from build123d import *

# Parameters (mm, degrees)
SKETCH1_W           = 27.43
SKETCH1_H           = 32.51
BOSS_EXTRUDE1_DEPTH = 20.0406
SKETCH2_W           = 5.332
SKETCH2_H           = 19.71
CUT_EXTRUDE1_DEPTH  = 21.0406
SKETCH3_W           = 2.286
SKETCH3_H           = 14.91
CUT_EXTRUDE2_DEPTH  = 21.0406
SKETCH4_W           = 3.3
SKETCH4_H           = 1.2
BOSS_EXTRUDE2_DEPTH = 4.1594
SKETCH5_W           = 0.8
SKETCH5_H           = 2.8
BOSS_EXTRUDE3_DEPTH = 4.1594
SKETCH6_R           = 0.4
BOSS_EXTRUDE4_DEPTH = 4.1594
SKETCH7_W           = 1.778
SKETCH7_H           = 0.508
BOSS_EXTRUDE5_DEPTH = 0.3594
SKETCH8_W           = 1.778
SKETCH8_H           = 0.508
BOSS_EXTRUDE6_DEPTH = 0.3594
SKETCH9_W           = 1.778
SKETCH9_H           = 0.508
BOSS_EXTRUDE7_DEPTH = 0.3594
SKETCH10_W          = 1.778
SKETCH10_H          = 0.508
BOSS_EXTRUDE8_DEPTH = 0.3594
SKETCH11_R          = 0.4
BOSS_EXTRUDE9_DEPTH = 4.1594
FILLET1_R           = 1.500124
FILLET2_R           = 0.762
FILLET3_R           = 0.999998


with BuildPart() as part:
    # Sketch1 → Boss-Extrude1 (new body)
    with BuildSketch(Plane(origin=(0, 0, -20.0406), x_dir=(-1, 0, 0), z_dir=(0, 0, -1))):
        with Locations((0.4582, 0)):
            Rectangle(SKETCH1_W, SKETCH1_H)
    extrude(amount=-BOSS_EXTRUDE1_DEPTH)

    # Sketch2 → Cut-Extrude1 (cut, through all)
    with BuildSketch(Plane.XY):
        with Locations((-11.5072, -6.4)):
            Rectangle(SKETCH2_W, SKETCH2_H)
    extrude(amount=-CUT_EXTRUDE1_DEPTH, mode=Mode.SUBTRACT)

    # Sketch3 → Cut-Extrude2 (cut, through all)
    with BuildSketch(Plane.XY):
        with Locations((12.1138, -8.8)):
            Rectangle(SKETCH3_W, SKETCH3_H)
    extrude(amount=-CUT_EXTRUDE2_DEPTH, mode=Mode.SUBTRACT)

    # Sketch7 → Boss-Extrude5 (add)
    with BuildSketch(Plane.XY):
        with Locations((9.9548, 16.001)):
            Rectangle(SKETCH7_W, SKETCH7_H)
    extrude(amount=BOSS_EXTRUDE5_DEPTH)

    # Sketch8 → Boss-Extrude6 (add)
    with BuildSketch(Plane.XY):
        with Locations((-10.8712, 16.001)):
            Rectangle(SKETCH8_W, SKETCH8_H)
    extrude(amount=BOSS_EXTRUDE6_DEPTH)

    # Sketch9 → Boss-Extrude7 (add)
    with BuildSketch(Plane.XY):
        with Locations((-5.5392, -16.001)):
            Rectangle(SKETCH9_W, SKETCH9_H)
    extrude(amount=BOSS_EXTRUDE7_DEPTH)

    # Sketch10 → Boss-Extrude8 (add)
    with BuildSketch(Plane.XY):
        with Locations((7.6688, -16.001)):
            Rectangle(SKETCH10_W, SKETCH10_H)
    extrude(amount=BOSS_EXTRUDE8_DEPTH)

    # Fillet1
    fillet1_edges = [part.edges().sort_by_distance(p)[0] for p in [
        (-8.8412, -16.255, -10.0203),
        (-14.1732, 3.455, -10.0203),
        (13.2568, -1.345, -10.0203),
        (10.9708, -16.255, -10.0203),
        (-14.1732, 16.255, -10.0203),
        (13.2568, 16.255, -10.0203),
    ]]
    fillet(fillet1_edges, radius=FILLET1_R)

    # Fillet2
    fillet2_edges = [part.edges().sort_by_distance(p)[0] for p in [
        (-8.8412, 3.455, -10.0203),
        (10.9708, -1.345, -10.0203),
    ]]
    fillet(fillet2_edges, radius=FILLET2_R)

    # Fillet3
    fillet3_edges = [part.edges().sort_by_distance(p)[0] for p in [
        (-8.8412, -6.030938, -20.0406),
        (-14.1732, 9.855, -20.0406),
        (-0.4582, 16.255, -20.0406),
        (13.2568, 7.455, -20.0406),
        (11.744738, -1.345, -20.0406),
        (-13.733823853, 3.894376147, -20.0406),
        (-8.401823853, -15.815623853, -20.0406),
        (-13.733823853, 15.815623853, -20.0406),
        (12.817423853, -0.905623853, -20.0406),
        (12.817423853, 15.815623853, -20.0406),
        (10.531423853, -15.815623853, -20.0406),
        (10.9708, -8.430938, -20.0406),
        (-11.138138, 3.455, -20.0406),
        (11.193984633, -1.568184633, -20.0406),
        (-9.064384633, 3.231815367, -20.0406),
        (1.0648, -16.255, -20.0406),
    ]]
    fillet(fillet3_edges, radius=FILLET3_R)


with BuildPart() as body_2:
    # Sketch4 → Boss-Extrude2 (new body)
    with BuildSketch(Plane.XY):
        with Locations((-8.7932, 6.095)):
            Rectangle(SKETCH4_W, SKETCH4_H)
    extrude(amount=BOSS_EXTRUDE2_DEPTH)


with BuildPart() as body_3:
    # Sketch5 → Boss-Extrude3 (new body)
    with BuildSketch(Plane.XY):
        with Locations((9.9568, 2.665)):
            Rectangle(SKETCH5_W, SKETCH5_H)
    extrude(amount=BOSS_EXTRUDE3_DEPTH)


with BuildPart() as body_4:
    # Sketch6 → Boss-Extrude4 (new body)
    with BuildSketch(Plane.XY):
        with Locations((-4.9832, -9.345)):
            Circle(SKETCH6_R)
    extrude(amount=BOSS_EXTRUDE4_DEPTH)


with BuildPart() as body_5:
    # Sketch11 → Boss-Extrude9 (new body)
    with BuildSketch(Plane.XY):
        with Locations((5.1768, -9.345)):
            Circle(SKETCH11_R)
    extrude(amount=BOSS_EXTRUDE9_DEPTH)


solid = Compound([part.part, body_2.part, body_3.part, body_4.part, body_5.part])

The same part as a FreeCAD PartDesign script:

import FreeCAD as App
import Part
import Sketcher
from FreeCAD import Vector


def edges_at(feature, points):
    """Names of the edges that pass closest to the given points."""
    edges = feature.Shape.Edges
    near = lambda p: min(range(len(edges)), key=lambda i: edges[i].distToShape(Part.Vertex(*p))[0])
    return sorted({f"Edge{near(p) + 1}" for p in points})


def add_polygon(sketch, points):
    """Adds a closed chain of lines whose ends are joined by coincident constraints."""
    first, n = sketch.GeometryCount, len(points)
    for a, b in zip(points, points[1:] + points[:1]):
        sketch.addGeometry(Part.LineSegment(App.Vector(*a, 0), App.Vector(*b, 0)), False)
    for i in range(n):
        sketch.addConstraint(Sketcher.Constraint("Coincident", first + i, 2, first + (i + 1) % n, 1))

doc = App.newDocument("Part")
body = doc.addObject("PartDesign::Body", "Body")

sketch1 = body.newObject("Sketcher::SketchObject", "Sketch")
sketch1.AttachmentSupport = (doc.getObject("XY_Plane"), [""])
sketch1.MapMode = "FlatFace"
sketch1.AttachmentOffset = App.Placement(Vector(0, 0, -20.0406), App.Rotation())
add_polygon(sketch1, [(13, 16), (13, -16), (-14, -16), (-14, 16)])
sketch1.addConstraint(Sketcher.Constraint("Vertical", 0))
sketch1.addConstraint(Sketcher.Constraint("Horizontal", 1))
sketch1.addConstraint(Sketcher.Constraint("Vertical", 2))
sketch1.addConstraint(Sketcher.Constraint("Horizontal", 3))
sketch1.addConstraint(Sketcher.Constraint("DistanceX", 1, 2, 1, 1, 27.43))
sketch1.addConstraint(Sketcher.Constraint("DistanceY", 0, 2, 0, 1, 32.51))
sketch1.addConstraint(Sketcher.Constraint("DistanceY", 0, 2, -1, 1, 16.255))
sketch1.addConstraint(Sketcher.Constraint("DistanceX", -1, 1, 0, 2, 13.2568))
pad1 = body.newObject("PartDesign::Pad", "Pad")
pad1.Profile = sketch1
pad1.Length = 20.0406

sketch2 = body.newObject("Sketcher::SketchObject", "Sketch001")
sketch2.AttachmentSupport = (doc.getObject("XY_Plane"), [""])
sketch2.MapMode = "FlatFace"
add_polygon(sketch2, [(-14, 3), (-14, -16), (-9, -16), (-9, 3)])
sketch2.addConstraint(Sketcher.Constraint("Vertical", 0))
sketch2.addConstraint(Sketcher.Constraint("Horizontal", 1))
sketch2.addConstraint(Sketcher.Constraint("Vertical", 2))
sketch2.addConstraint(Sketcher.Constraint("Horizontal", 3))
sketch2.addConstraint(Sketcher.Constraint("DistanceY", 0, 2, 0, 1, 19.71))
sketch2.addConstraint(Sketcher.Constraint("DistanceX", 1, 1, 1, 2, 5.332))
sketch2.addConstraint(Sketcher.Constraint("DistanceY", 0, 2, -1, 1, 16.255))
sketch2.addConstraint(Sketcher.Constraint("DistanceX", 0, 2, -1, 1, 14.1732))
pocket1 = body.newObject("PartDesign::Pocket", "Pocket")
pocket1.Profile = sketch2
pocket1.Type = "ThroughAll"

sketch3 = body.newObject("Sketcher::SketchObject", "Sketch002")
sketch3.AttachmentSupport = (doc.getObject("XY_Plane"), [""])
sketch3.MapMode = "FlatFace"
add_polygon(sketch3, [(11, -1.3), (11, -16.3), (13.3, -16.3), (13.3, -1.3)])
sketch3.addConstraint(Sketcher.Constraint("Vertical", 0))
sketch3.addConstraint(Sketcher.Constraint("Horizontal", 1))
sketch3.addConstraint(Sketcher.Constraint("Vertical", 2))
sketch3.addConstraint(Sketcher.Constraint("Horizontal", 3))
sketch3.addConstraint(Sketcher.Constraint("DistanceY", 0, 2, 0, 1, 14.91))
sketch3.addConstraint(Sketcher.Constraint("DistanceX", 1, 1, 1, 2, 2.286))
sketch3.addConstraint(Sketcher.Constraint("DistanceY", 0, 2, -1, 1, 16.255))
sketch3.addConstraint(Sketcher.Constraint("DistanceX", -1, 1, 0, 2, 10.9708))
pocket2 = body.newObject("PartDesign::Pocket", "Pocket001")
pocket2.Profile = sketch3
pocket2.Type = "ThroughAll"

sketch4 = body.newObject("Sketcher::SketchObject", "Sketch003")
sketch4.AttachmentSupport = (doc.getObject("XY_Plane"), [""])
sketch4.MapMode = "FlatFace"
add_polygon(sketch4, [(9.1, 16.3), (9.1, 15.7), (10.8, 15.7), (10.8, 16.3)])
sketch4.addConstraint(Sketcher.Constraint("Vertical", 0))
sketch4.addConstraint(Sketcher.Constraint("Horizontal", 1))
sketch4.addConstraint(Sketcher.Constraint("Vertical", 2))
sketch4.addConstraint(Sketcher.Constraint("Horizontal", 3))
sketch4.addConstraint(Sketcher.Constraint("DistanceX", 1, 1, 1, 2, 1.778))
sketch4.addConstraint(Sketcher.Constraint("DistanceY", 0, 2, 0, 1, 0.508))
sketch4.addConstraint(Sketcher.Constraint("DistanceY", -1, 1, 0, 2, 15.747))
sketch4.addConstraint(Sketcher.Constraint("DistanceX", -1, 1, 0, 2, 9.0658))
pad2 = body.newObject("PartDesign::Pad", "Pad001")
pad2.Profile = sketch4
pad2.Length = 0.3594

sketch5 = body.newObject("Sketcher::SketchObject", "Sketch004")
sketch5.AttachmentSupport = (doc.getObject("XY_Plane"), [""])
sketch5.MapMode = "FlatFace"
add_polygon(sketch5, [(-11.8, 16.3), (-11.8, 15.7), (-10, 15.7), (-10, 16.3)])
sketch5.addConstraint(Sketcher.Constraint("Vertical", 0))
sketch5.addConstraint(Sketcher.Constraint("Horizontal", 1))
sketch5.addConstraint(Sketcher.Constraint("Vertical", 2))
sketch5.addConstraint(Sketcher.Constraint("Horizontal", 3))
sketch5.addConstraint(Sketcher.Constraint("DistanceX", 1, 1, 1, 2, 1.778))
sketch5.addConstraint(Sketcher.Constraint("DistanceY", 0, 2, 0, 1, 0.508))
sketch5.addConstraint(Sketcher.Constraint("DistanceY", -1, 1, 0, 2, 15.747))
sketch5.addConstraint(Sketcher.Constraint("DistanceX", 0, 2, -1, 1, 11.7602))
pad3 = body.newObject("PartDesign::Pad", "Pad002")
pad3.Profile = sketch5
pad3.Length = 0.3594

sketch6 = body.newObject("Sketcher::SketchObject", "Sketch005")
sketch6.AttachmentSupport = (doc.getObject("XY_Plane"), [""])
sketch6.MapMode = "FlatFace"
add_polygon(sketch6, [(-6.4, -15.7), (-6.4, -16.3), (-4.7, -16.3), (-4.7, -15.7)])
sketch6.addConstraint(Sketcher.Constraint("Vertical", 0))
sketch6.addConstraint(Sketcher.Constraint("Horizontal", 1))
sketch6.addConstraint(Sketcher.Constraint("Vertical", 2))
sketch6.addConstraint(Sketcher.Constraint("Horizontal", 3))
sketch6.addConstraint(Sketcher.Constraint("DistanceX", 1, 1, 1, 2, 1.778))
sketch6.addConstraint(Sketcher.Constraint("DistanceY", 0, 2, 0, 1, 0.508))
sketch6.addConstraint(Sketcher.Constraint("DistanceY", 0, 2, -1, 1, 16.255))
sketch6.addConstraint(Sketcher.Constraint("DistanceX", 0, 2, -1, 1, 6.4282))
pad4 = body.newObject("PartDesign::Pad", "Pad003")
pad4.Profile = sketch6
pad4.Length = 0.3594

sketch7 = body.newObject("Sketcher::SketchObject", "Sketch006")
sketch7.AttachmentSupport = (doc.getObject("XY_Plane"), [""])
sketch7.MapMode = "FlatFace"
add_polygon(sketch7, [(6.8, -15.7), (6.8, -16.3), (8.6, -16.3), (8.6, -15.7)])
sketch7.addConstraint(Sketcher.Constraint("Vertical", 0))
sketch7.addConstraint(Sketcher.Constraint("Horizontal", 1))
sketch7.addConstraint(Sketcher.Constraint("Vertical", 2))
sketch7.addConstraint(Sketcher.Constraint("Horizontal", 3))
sketch7.addConstraint(Sketcher.Constraint("DistanceX", 1, 1, 1, 2, 1.778))
sketch7.addConstraint(Sketcher.Constraint("DistanceY", 0, 2, 0, 1, 0.508))
sketch7.addConstraint(Sketcher.Constraint("DistanceY", 0, 2, -1, 1, 16.255))
sketch7.addConstraint(Sketcher.Constraint("DistanceX", -1, 1, 0, 2, 6.7798))
pad5 = body.newObject("PartDesign::Pad", "Pad004")
pad5.Profile = sketch7
pad5.Length = 0.3594
doc.recompute()

fillet = body.newObject("PartDesign::Fillet", "Fillet")
fillet.Base = (pad5, edges_at(pad5, [
    (-8.841, -16.255, -10.02),
    (-14.173, 3.455, -10.02),
    (13.257, -1.345, -10.02),
    (10.971, -16.255, -10.02),
    (-14.173, 16.255, -10.02),
    (13.257, 16.255, -10.02),
]))
fillet.Radius = 1.500124
doc.recompute()

fillet2 = body.newObject("PartDesign::Fillet", "Fillet001")
fillet2.Base = (fillet, edges_at(fillet, [(-8.841, 3.455, -10.02), (10.971, -1.345, -10.02)]))
fillet2.Radius = 0.762
doc.recompute()

fillet3 = body.newObject("PartDesign::Fillet", "Fillet002")
fillet3.Base = (fillet2, edges_at(fillet2, [
    (-8.841, -6.031, -20.041),
    (-14.173, 9.855, -20.041),
    (-0.458, 16.255, -20.041),
    (13.257, 7.455, -20.041),
    (11.745, -1.345, -20.041),
    (-13.734, 3.894, -20.041),
    (-8.402, -15.816, -20.041),
    (-13.734, 15.816, -20.041),
    (12.817, -0.906, -20.041),
    (12.817, 15.816, -20.041),
    (10.531, -15.816, -20.041),
    (10.971, -8.431, -20.041),
    (-11.138, 3.455, -20.041),
    (11.194, -1.568, -20.041),
    (-9.064, 3.232, -20.041),
    (1.065, -16.255, -20.041),
]))
fillet3.Radius = 0.999998
body2 = doc.addObject("PartDesign::Body", "Body001")

sketch8 = body2.newObject("Sketcher::SketchObject", "Sketch007")
sketch8.AttachmentSupport = (doc.getObject("XY_Plane001"), [""])
sketch8.MapMode = "FlatFace"
add_polygon(sketch8, [(-10.4, 6.7), (-10.4, 5.5), (-7.1, 5.5), (-7.1, 6.7)])
sketch8.addConstraint(Sketcher.Constraint("Vertical", 0))
sketch8.addConstraint(Sketcher.Constraint("Horizontal", 1))
sketch8.addConstraint(Sketcher.Constraint("Vertical", 2))
sketch8.addConstraint(Sketcher.Constraint("Horizontal", 3))
sketch8.addConstraint(Sketcher.Constraint("DistanceX", 1, 1, 1, 2, 3.3))
sketch8.addConstraint(Sketcher.Constraint("DistanceY", 0, 2, 0, 1, 1.2))
sketch8.addConstraint(Sketcher.Constraint("DistanceY", -1, 1, 0, 2, 5.495))
sketch8.addConstraint(Sketcher.Constraint("DistanceX", 0, 2, -1, 1, 10.4432))
pad6 = body2.newObject("PartDesign::Pad", "Pad005")
pad6.Profile = sketch8
pad6.Length = 4.1594
body3 = doc.addObject("PartDesign::Body", "Body002")

sketch9 = body3.newObject("Sketcher::SketchObject", "Sketch008")
sketch9.AttachmentSupport = (doc.getObject("XY_Plane002"), [""])
sketch9.MapMode = "FlatFace"
add_polygon(sketch9, [(9.6, 4.1), (9.6, 1.3), (10.4, 1.3), (10.4, 4.1)])
sketch9.addConstraint(Sketcher.Constraint("Vertical", 0))
sketch9.addConstraint(Sketcher.Constraint("Horizontal", 1))
sketch9.addConstraint(Sketcher.Constraint("Vertical", 2))
sketch9.addConstraint(Sketcher.Constraint("Horizontal", 3))
sketch9.addConstraint(Sketcher.Constraint("DistanceX", 1, 1, 1, 2, 0.8))
sketch9.addConstraint(Sketcher.Constraint("DistanceY", 0, 2, 0, 1, 2.8))
sketch9.addConstraint(Sketcher.Constraint("DistanceY", -1, 1, 0, 2, 1.265))
sketch9.addConstraint(Sketcher.Constraint("DistanceX", -1, 1, 0, 2, 9.5568))
pad7 = body3.newObject("PartDesign::Pad", "Pad006")
pad7.Profile = sketch9
pad7.Length = 4.1594
body4 = doc.addObject("PartDesign::Body", "Body003")

sketch10 = body4.newObject("Sketcher::SketchObject", "Sketch009")
sketch10.AttachmentSupport = (doc.getObject("XY_Plane003"), [""])
sketch10.MapMode = "FlatFace"
sketch10.addGeometry(Part.Circle(Vector(-4.98, -9.35, 0), Vector(0, 0, 1), 0.4), False)
sketch10.addConstraint(Sketcher.Constraint("Diameter", 0, 0.8))
sketch10.addConstraint(Sketcher.Constraint("DistanceY", 0, 3, -1, 1, 9.345))
sketch10.addConstraint(Sketcher.Constraint("DistanceX", 0, 3, -1, 1, 4.9832))
pad8 = body4.newObject("PartDesign::Pad", "Pad007")
pad8.Profile = sketch10
pad8.Length = 4.1594
body5 = doc.addObject("PartDesign::Body", "Body004")

sketch11 = body5.newObject("Sketcher::SketchObject", "Sketch010")
sketch11.AttachmentSupport = (doc.getObject("XY_Plane004"), [""])
sketch11.MapMode = "FlatFace"
sketch11.addGeometry(Part.Circle(Vector(5.18, -9.35, 0), Vector(0, 0, 1), 0.4), False)
sketch11.addConstraint(Sketcher.Constraint("Diameter", 0, 0.8))
sketch11.addConstraint(Sketcher.Constraint("DistanceY", 0, 3, -1, 1, 9.345))
sketch11.addConstraint(Sketcher.Constraint("DistanceX", -1, 1, 0, 3, 5.1768))
pad9 = body5.newObject("PartDesign::Pad", "Pad008")
pad9.Profile = sketch11
pad9.Length = 4.1594

doc.recompute()
